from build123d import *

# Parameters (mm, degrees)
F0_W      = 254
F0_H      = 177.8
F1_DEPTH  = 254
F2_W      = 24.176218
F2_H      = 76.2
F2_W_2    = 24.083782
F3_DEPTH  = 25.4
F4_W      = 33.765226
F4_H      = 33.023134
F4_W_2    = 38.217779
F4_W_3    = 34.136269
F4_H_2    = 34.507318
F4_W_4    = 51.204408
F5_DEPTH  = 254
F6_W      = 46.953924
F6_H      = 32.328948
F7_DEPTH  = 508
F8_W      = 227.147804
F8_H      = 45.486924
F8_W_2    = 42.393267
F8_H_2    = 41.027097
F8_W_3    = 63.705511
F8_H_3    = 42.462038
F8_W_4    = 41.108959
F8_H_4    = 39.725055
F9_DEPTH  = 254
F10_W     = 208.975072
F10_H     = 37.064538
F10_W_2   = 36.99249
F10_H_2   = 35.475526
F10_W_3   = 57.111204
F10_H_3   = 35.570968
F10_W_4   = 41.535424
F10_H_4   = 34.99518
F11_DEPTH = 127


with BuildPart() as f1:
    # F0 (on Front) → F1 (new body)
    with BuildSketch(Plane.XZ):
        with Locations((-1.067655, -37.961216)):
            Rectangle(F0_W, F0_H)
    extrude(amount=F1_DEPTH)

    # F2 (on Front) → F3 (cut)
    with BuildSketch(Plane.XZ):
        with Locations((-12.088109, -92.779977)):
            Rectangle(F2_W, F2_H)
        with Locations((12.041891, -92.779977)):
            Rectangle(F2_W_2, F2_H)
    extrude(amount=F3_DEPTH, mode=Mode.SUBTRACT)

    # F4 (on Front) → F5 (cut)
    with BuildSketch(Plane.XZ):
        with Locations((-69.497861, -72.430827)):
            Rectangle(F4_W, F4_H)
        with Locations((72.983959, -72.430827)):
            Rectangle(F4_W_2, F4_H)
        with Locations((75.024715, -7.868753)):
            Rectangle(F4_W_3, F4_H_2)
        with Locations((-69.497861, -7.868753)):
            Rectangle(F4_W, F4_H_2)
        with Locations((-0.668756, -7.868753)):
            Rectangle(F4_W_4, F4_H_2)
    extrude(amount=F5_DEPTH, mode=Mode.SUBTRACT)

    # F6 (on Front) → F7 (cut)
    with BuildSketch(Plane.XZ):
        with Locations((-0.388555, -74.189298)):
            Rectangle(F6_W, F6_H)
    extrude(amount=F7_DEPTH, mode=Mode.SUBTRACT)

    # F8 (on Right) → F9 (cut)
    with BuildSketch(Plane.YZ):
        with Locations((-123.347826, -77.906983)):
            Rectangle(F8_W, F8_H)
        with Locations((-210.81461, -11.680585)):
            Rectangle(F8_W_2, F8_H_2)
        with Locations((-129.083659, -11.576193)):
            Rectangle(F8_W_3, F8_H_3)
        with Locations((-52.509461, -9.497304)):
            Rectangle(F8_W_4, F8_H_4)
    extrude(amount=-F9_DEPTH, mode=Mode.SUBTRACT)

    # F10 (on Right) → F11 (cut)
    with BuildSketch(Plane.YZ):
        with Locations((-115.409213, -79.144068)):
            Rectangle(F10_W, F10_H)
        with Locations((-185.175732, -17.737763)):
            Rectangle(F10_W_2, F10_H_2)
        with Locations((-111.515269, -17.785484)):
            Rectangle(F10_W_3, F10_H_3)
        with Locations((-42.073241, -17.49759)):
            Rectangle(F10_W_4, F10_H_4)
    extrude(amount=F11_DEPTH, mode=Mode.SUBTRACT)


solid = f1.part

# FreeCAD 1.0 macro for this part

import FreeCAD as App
import Part
import Sketcher
from FreeCAD import Vector
Q = App.Units.Quantity

doc = App.newDocument("Part")
body = doc.addObject("PartDesign::Body", "Body")

# Sketch on XZ plane
sketch1 = body.newObject("Sketcher::SketchObject", "Sketch")
sketch1.AttachmentSupport = (doc.getObject("XZ_Plane"), [""])
sketch1.MapMode = "FlatFace"
sketch1.addGeometry([
    Part.LineSegment(Vector(-128, 51, 0), Vector(-128, -127, 0)),
    Part.LineSegment(Vector(-128, -127, 0), Vector(126, -127, 0)),
    Part.LineSegment(Vector(126, -127, 0), Vector(126, 51, 0)),
    Part.LineSegment(Vector(126, 51, 0), Vector(-128, 51, 0)),
], False)
sketch1.addConstraint([
    Sketcher.Constraint("Coincident", 0, 2, 1, 1),
    Sketcher.Constraint("Coincident", 1, 2, 2, 1),
    Sketcher.Constraint("Coincident", 2, 2, 3, 1),
    Sketcher.Constraint("Coincident", 3, 2, 0, 1),
    Sketcher.Constraint("Vertical", 0),
    Sketcher.Constraint("Horizontal", 1),
    Sketcher.Constraint("Vertical", 2),
    Sketcher.Constraint("Horizontal", 3),
    Sketcher.Constraint("DistanceX", 1, 1, 1, 2, Q("10 in")),
    Sketcher.Constraint("DistanceY", 0, 2, 0, 1, Q("7 in")),
    Sketcher.Constraint("DistanceX", 0, 2, -1, 1, 128.067655),
    Sketcher.Constraint("DistanceY", 0, 2, -1, 1, 126.861216),
])
pad1 = body.newObject("PartDesign::Pad", "Pad")
pad1.Profile = sketch1
pad1.Length = Q("10 in")

# Sketch on XZ plane
sketch2 = body.newObject("Sketcher::SketchObject", "Sketch001")
sketch2.AttachmentSupport = (doc.getObject("XZ_Plane"), [""])
sketch2.MapMode = "FlatFace"
sketch2.addGeometry([
    Part.LineSegment(Vector(-24, -55, 0), Vector(-24, -131, 0)),
    Part.LineSegment(Vector(-24, -131, 0), Vector(24, -131, 0)),
    Part.LineSegment(Vector(24, -131, 0), Vector(24, -55, 0)),
    Part.LineSegment(Vector(24, -55, 0), Vector(-24, -55, 0)),
], False)
sketch2.addConstraint([
    Sketcher.Constraint("Coincident", 0, 2, 1, 1),
    Sketcher.Constraint("Coincident", 1, 2, 2, 1),
    Sketcher.Constraint("Coincident", 2, 2, 3, 1),
    Sketcher.Constraint("Coincident", 3, 2, 0, 1),
    Sketcher.Constraint("Vertical", 0),
    Sketcher.Constraint("Horizontal", 1),
    Sketcher.Constraint("Vertical", 2),
    Sketcher.Constraint("Horizontal", 3),
    Sketcher.Constraint("DistanceY", 0, 2, 0, 1, Q("3 in")),
    Sketcher.Constraint("DistanceX", 1, 1, 1, 2, Q("1.9 in")),
    Sketcher.Constraint("DistanceX", -1, 1, 1, 2, 24.083782),
    Sketcher.Constraint("DistanceY", 0, 2, -1, 1, 130.879977),
])
pocket1 = body.newObject("PartDesign::Pocket", "Pocket")
pocket1.Profile = sketch2
pocket1.Length = Q("1 in")
pocket1.Reversed = True

# Sketch on XZ plane
sketch3 = body.newObject("Sketcher::SketchObject", "Sketch002")
sketch3.AttachmentSupport = (doc.getObject("XZ_Plane"), [""])
sketch3.MapMode = "FlatFace"
sketch3.addGeometry([
    Part.LineSegment(Vector(-86, -56, 0), Vector(-86, -89, 0)),  # 0
    Part.LineSegment(Vector(-86, -89, 0), Vector(-53, -89, 0)),  # 1
    Part.LineSegment(Vector(-53, -89, 0), Vector(-53, -56, 0)),  # 2
    Part.LineSegment(Vector(-53, -56, 0), Vector(-86, -56, 0)),  # 3
    Part.LineSegment(Vector(54, -56, 0), Vector(54, -89, 0)),  # 4
    Part.LineSegment(Vector(54, -89, 0), Vector(92, -89, 0)),  # 5
    Part.LineSegment(Vector(92, -89, 0), Vector(92, -56, 0)),  # 6
    Part.LineSegment(Vector(92, -56, 0), Vector(54, -56, 0)),  # 7
    Part.LineSegment(Vector(58, 9, 0), Vector(58, -25, 0)),  # 8
    Part.LineSegment(Vector(58, -25, 0), Vector(92, -25, 0)),  # 9
    Part.LineSegment(Vector(92, -25, 0), Vector(92, 9, 0)),  # 10
    Part.LineSegment(Vector(92, 9, 0), Vector(58, 9, 0)),  # 11
    Part.LineSegment(Vector(-86, 9, 0), Vector(-86, -25, 0)),  # 12
    Part.LineSegment(Vector(-86, -25, 0), Vector(-53, -25, 0)),  # 13
    Part.LineSegment(Vector(-53, -25, 0), Vector(-53, 9, 0)),  # 14
    Part.LineSegment(Vector(-53, 9, 0), Vector(-86, 9, 0)),  # 15
    Part.LineSegment(Vector(-26, 9, 0), Vector(-26, -25, 0)),  # 16
    Part.LineSegment(Vector(-26, -25, 0), Vector(25, -25, 0)),  # 17
    Part.LineSegment(Vector(25, -25, 0), Vector(25, 9, 0)),  # 18
    Part.LineSegment(Vector(25, 9, 0), Vector(-26, 9, 0)),  # 19
], False)
sketch3.addConstraint([
    Sketcher.Constraint("Coincident", 0, 2, 1, 1),
    Sketcher.Constraint("Coincident", 1, 2, 2, 1),
    Sketcher.Constraint("Coincident", 2, 2, 3, 1),
    Sketcher.Constraint("Coincident", 3, 2, 0, 1),
    Sketcher.Constraint("Coincident", 4, 2, 5, 1),
    Sketcher.Constraint("Coincident", 5, 2, 6, 1),
    Sketcher.Constraint("Coincident", 6, 2, 7, 1),
    Sketcher.Constraint("Coincident", 7, 2, 4, 1),
    Sketcher.Constraint("Coincident", 8, 2, 9, 1),
    Sketcher.Constraint("Coincident", 9, 2, 10, 1),
    Sketcher.Constraint("Coincident", 10, 2, 11, 1),
    Sketcher.Constraint("Coincident", 11, 2, 8, 1),
    Sketcher.Constraint("Coincident", 12, 2, 13, 1),
    Sketcher.Constraint("Coincident", 13, 2, 14, 1),
    Sketcher.Constraint("Coincident", 14, 2, 15, 1),
    Sketcher.Constraint("Coincident", 15, 2, 12, 1),
    Sketcher.Constraint("Coincident", 16, 2, 17, 1),
    Sketcher.Constraint("Coincident", 17, 2, 18, 1),
    Sketcher.Constraint("Coincident", 18, 2, 19, 1),
    Sketcher.Constraint("Coincident", 19, 2, 16, 1),
    Sketcher.Constraint("Vertical", 0),
    Sketcher.Constraint("Horizontal", 1),
    Sketcher.Constraint("Vertical", 2),
    Sketcher.Constraint("Horizontal", 3),
    Sketcher.Constraint("Vertical", 4),
    Sketcher.Constraint("Horizontal", 5),
    Sketcher.Constraint("Vertical", 6),
    Sketcher.Constraint("Horizontal", 7),
    Sketcher.Constraint("Vertical", 8),
    Sketcher.Constraint("Horizontal", 9),
    Sketcher.Constraint("Vertical", 10),
    Sketcher.Constraint("Horizontal", 11),
    Sketcher.Constraint("Vertical", 12),
    Sketcher.Constraint("Horizontal", 13),
    Sketcher.Constraint("Vertical", 14),
    Sketcher.Constraint("Horizontal", 15),
    Sketcher.Constraint("Vertical", 16),
    Sketcher.Constraint("Horizontal", 17),
    Sketcher.Constraint("Vertical", 18),
    Sketcher.Constraint("Horizontal", 19),
    Sketcher.Constraint("Horizontal", 1, 2, 4, 2),
    Sketcher.Constraint("Horizontal", 3, 2, 6, 2),
    Sketcher.Constraint("Horizontal", 9, 2, 12, 2),
    Sketcher.Constraint("Horizontal", 11, 2, 14, 2),
    Sketcher.Constraint("Horizontal", 13, 2, 16, 2),
    Sketcher.Constraint("Horizontal", 15, 2, 18, 2),
    Sketcher.Constraint("Vertical", 6, 2, 9, 2),
    Sketcher.Constraint("Vertical", 3, 2, 12, 2),
    Sketcher.Constraint("Vertical", 2, 2, 13, 2),
    Sketcher.Constraint("DistanceX", 5, 1, 5, 2, 38.217779),
    Sketcher.Constraint("DistanceX", 9, 1, 9, 2, 34.136269),
    Sketcher.Constraint("DistanceY", 5, 2, 10, 2, 98.3273),
    Sketcher.Constraint("DistanceX", 17, 2, 9, 2, 67.159402),
    Sketcher.Constraint("DistanceX", 1, 1, 1, 2, 33.765226),
    Sketcher.Constraint("DistanceX", 17, 1, 17, 2, 51.204408),
    Sketcher.Constraint("DistanceY", 0, 2, 0, 1, 33.023134),
    Sketcher.Constraint("DistanceY", 8, 2, 8, 1, 34.507318),
    Sketcher.Constraint("DistanceY", 2, 2, -1, 1, 55.91926),
    Sketcher.Constraint("DistanceX", -1, 1, 4, 2, 53.87507),
    Sketcher.Constraint("DistanceX", 2, 2, 8, 2, 110.571829),
])
pocket2 = body.newObject("PartDesign::Pocket", "Pocket001")
pocket2.Profile = sketch3
pocket2.Length = Q("10 in")
pocket2.Reversed = True

# Sketch on XZ plane
sketch4 = body.newObject("Sketcher::SketchObject", "Sketch003")
sketch4.AttachmentSupport = (doc.getObject("XZ_Plane"), [""])
sketch4.MapMode = "FlatFace"
sketch4.addGeometry([
    Part.LineSegment(Vector(-24, -58, 0), Vector(-24, -90, 0)),
    Part.LineSegment(Vector(-24, -90, 0), Vector(23, -90, 0)),
    Part.LineSegment(Vector(23, -90, 0), Vector(23, -58, 0)),
    Part.LineSegment(Vector(23, -58, 0), Vector(-24, -58, 0)),
], False)
sketch4.addConstraint([
    Sketcher.Constraint("Coincident", 0, 2, 1, 1),
    Sketcher.Constraint("Coincident", 1, 2, 2, 1),
    Sketcher.Constraint("Coincident", 2, 2, 3, 1),
    Sketcher.Constraint("Coincident", 3, 2, 0, 1),
    Sketcher.Constraint("Vertical", 0),
    Sketcher.Constraint("Horizontal", 1),
    Sketcher.Constraint("Vertical", 2),
    Sketcher.Constraint("Horizontal", 3),
    Sketcher.Constraint("DistanceY", 0, 2, 0, 1, 32.328948),
    Sketcher.Constraint("DistanceX", 1, 1, 1, 2, 46.953924),
    Sketcher.Constraint("DistanceX", 0, 2, -1, 1, 23.865517),
    Sketcher.Constraint("DistanceY", 0, 2, -1, 1, 90.353772),
])
pocket3 = body.newObject("PartDesign::Pocket", "Pocket002")
pocket3.Profile = sketch4
pocket3.Length = Q("20 in")
pocket3.Reversed = True

# Sketch on YZ plane
sketch5 = body.newObject("Sketcher::SketchObject", "Sketch004")
sketch5.AttachmentSupport = (doc.getObject("YZ_Plane"), [""])
sketch5.MapMode = "FlatFace"
sketch5.addGeometry([
    Part.LineSegment(Vector(-237, -55, 0), Vector(-237, -101, 0)),  # 0
    Part.LineSegment(Vector(-237, -101, 0), Vector(-10, -101, 0)),  # 1
    Part.LineSegment(Vector(-10, -101, 0), Vector(-10, -55, 0)),  # 2
    Part.LineSegment(Vector(-10, -55, 0), Vector(-237, -55, 0)),  # 3
    Part.LineSegment(Vector(-232, 9, 0), Vector(-232, -32, 0)),  # 4
    Part.LineSegment(Vector(-232, -32, 0), Vector(-190, -32, 0)),  # 5
    Part.LineSegment(Vector(-190, -32, 0), Vector(-190, 9, 0)),  # 6
    Part.LineSegment(Vector(-190, 9, 0), Vector(-232, 9, 0)),  # 7
    Part.LineSegment(Vector(-161, 10, 0), Vector(-161, -33, 0)),  # 8
    Part.LineSegment(Vector(-161, -33, 0), Vector(-97, -33, 0)),  # 9
    Part.LineSegment(Vector(-97, -33, 0), Vector(-97, 10, 0)),  # 10
    Part.LineSegment(Vector(-97, 10, 0), Vector(-161, 10, 0)),  # 11
    Part.LineSegment(Vector(-73, 10, 0), Vector(-73, -29, 0)),  # 12
    Part.LineSegment(Vector(-73, -29, 0), Vector(-32, -29, 0)),  # 13
    Part.LineSegment(Vector(-32, -29, 0), Vector(-32, 10, 0)),  # 14
    Part.LineSegment(Vector(-32, 10, 0), Vector(-73, 10, 0)),  # 15
], False)
sketch5.addConstraint([
    Sketcher.Constraint("Coincident", 0, 2, 1, 1),
    Sketcher.Constraint("Coincident", 1, 2, 2, 1),
    Sketcher.Constraint("Coincident", 2, 2, 3, 1),
    Sketcher.Constraint("Coincident", 3, 2, 0, 1),
    Sketcher.Constraint("Coincident", 4, 2, 5, 1),
    Sketcher.Constraint("Coincident", 5, 2, 6, 1),
    Sketcher.Constraint("Coincident", 6, 2, 7, 1),
    Sketcher.Constraint("Coincident", 7, 2, 4, 1),
    Sketcher.Constraint("Coincident", 8, 2, 9, 1),
    Sketcher.Constraint("Coincident", 9, 2, 10, 1),
    Sketcher.Constraint("Coincident", 10, 2, 11, 1),
    Sketcher.Constraint("Coincident", 11, 2, 8, 1),
    Sketcher.Constraint("Coincident", 12, 2, 13, 1),
    Sketcher.Constraint("Coincident", 13, 2, 14, 1),
    Sketcher.Constraint("Coincident", 14, 2, 15, 1),
    Sketcher.Constraint("Coincident", 15, 2, 12, 1),
    Sketcher.Constraint("Vertical", 0),
    Sketcher.Constraint("Horizontal", 1),
    Sketcher.Constraint("Vertical", 2),
    Sketcher.Constraint("Horizontal", 3),
    Sketcher.Constraint("Vertical", 4),
    Sketcher.Constraint("Horizontal", 5),
    Sketcher.Constraint("Vertical", 6),
    Sketcher.Constraint("Horizontal", 7),
    Sketcher.Constraint("Vertical", 8),
    Sketcher.Constraint("Horizontal", 9),
    Sketcher.Constraint("Vertical", 10),
    Sketcher.Constraint("Horizontal", 11),
    Sketcher.Constraint("Vertical", 12),
    Sketcher.Constraint("Horizontal", 13),
    Sketcher.Constraint("Vertical", 14),
    Sketcher.Constraint("Horizontal", 15),
    Sketcher.Constraint("DistanceX", 1, 2, -1, 1, Q("0.3848002 in")),
    Sketcher.Constraint("DistanceX", 9, 1, 9, 2, 63.705511),
    Sketcher.Constraint("DistanceX", 13, 1, 13, 2, 41.108959),
    Sketcher.Constraint("DistanceX", 1, 1, 1, 2, 227.147804),
    Sketcher.Constraint("DistanceX", 5, 1, 5, 2, 42.393267),
    Sketcher.Constraint("DistanceY", 0, 2, 0, 1, 45.486924),
    Sketcher.Constraint("DistanceY", 4, 2, 4, 1, 41.027097),
    Sketcher.Constraint("DistanceY", 8, 2, 8, 1, 42.462038),
    Sketcher.Constraint("DistanceY", 12, 2, 12, 1, 39.725055),
    Sketcher.Constraint("DistanceY", 2, 2, -1, 1, 55.163521),
    Sketcher.Constraint("DistanceX", 12, 2, -1, 1, 73.063941),
    Sketcher.Constraint("DistanceY", 12, 2, -1, 1, 29.359831),
    Sketcher.Constraint("DistanceY", 0, 2, 4, 2, 68.456311),
    Sketcher.Constraint("DistanceX", 4, 2, 2, 2, 222.23732),
    Sketcher.Constraint("DistanceX", 5, 2, 8, 2, 28.681562),
    Sketcher.Constraint("DistanceY", 8, 2, 5, 2, 0.613079),
])
pocket4 = body.newObject("PartDesign::Pocket", "Pocket003")
pocket4.Profile = sketch5
pocket4.Length = Q("10 in")

# Sketch on YZ plane
sketch6 = body.newObject("Sketcher::SketchObject", "Sketch005")
sketch6.AttachmentSupport = (doc.getObject("YZ_Plane"), [""])
sketch6.MapMode = "FlatFace"
sketch6.addGeometry([
    Part.LineSegment(Vector(-220, -61, 0), Vector(-220, -98, 0)),  # 0
    Part.LineSegment(Vector(-220, -98, 0), Vector(-11, -98, 0)),  # 1
    Part.LineSegment(Vector(-11, -98, 0), Vector(-11, -61, 0)),  # 2
    Part.LineSegment(Vector(-11, -61, 0), Vector(-220, -61, 0)),  # 3
    Part.LineSegment(Vector(-204, 0, 0), Vector(-204, -35, 0)),  # 4
    Part.LineSegment(Vector(-204, -35, 0), Vector(-167, -35, 0)),  # 5
    Part.LineSegment(Vector(-167, -35, 0), Vector(-167, 0, 0)),  # 6
    Part.LineSegment(Vector(-167, 0, 0), Vector(-204, 0, 0)),  # 7
    Part.LineSegment(Vector(-140, 0, 0), Vector(-140, -36, 0)),  # 8
    Part.LineSegment(Vector(-140, -36, 0), Vector(-83, -36, 0)),  # 9
    Part.LineSegment(Vector(-83, -36, 0), Vector(-83, 0, 0)),  # 10
    Part.LineSegment(Vector(-83, 0, 0), Vector(-140, 0, 0)),  # 11
    Part.LineSegment(Vector(-63, 0, 0), Vector(-63, -35, 0)),  # 12
    Part.LineSegment(Vector(-63, -35, 0), Vector(-21, -35, 0)),  # 13
    Part.LineSegment(Vector(-21, -35, 0), Vector(-21, 0, 0)),  # 14
    Part.LineSegment(Vector(-21, 0, 0), Vector(-63, 0, 0)),  # 15
], False)
sketch6.addConstraint([
    Sketcher.Constraint("Coincident", 0, 2, 1, 1),
    Sketcher.Constraint("Coincident", 1, 2, 2, 1),
    Sketcher.Constraint("Coincident", 2, 2, 3, 1),
    Sketcher.Constraint("Coincident", 3, 2, 0, 1),
    Sketcher.Constraint("Coincident", 4, 2, 5, 1),
    Sketcher.Constraint("Coincident", 5, 2, 6, 1),
    Sketcher.Constraint("Coincident", 6, 2, 7, 1),
    Sketcher.Constraint("Coincident", 7, 2, 4, 1),
    Sketcher.Constraint("Coincident", 8, 2, 9, 1),
    Sketcher.Constraint("Coincident", 9, 2, 10, 1),
    Sketcher.Constraint("Coincident", 10, 2, 11, 1),
    Sketcher.Constraint("Coincident", 11, 2, 8, 1),
    Sketcher.Constraint("Coincident", 12, 2, 13, 1),
    Sketcher.Constraint("Coincident", 13, 2, 14, 1),
    Sketcher.Constraint("Coincident", 14, 2, 15, 1),
    Sketcher.Constraint("Coincident", 15, 2, 12, 1),
    Sketcher.Constraint("Vertical", 0),
    Sketcher.Constraint("Horizontal", 1),
    Sketcher.Constraint("Vertical", 2),
    Sketcher.Constraint("Horizontal", 3),
    Sketcher.Constraint("Vertical", 4),
    Sketcher.Constraint("Horizontal", 5),
    Sketcher.Constraint("Vertical", 6),
    Sketcher.Constraint("Horizontal", 7),
    Sketcher.Constraint("Vertical", 8),
    Sketcher.Constraint("Horizontal", 9),
    Sketcher.Constraint("Vertical", 10),
    Sketcher.Constraint("Horizontal", 11),
    Sketcher.Constraint("Vertical", 12),
    Sketcher.Constraint("Horizontal", 13),
    Sketcher.Constraint("Vertical", 14),
    Sketcher.Constraint("Horizontal", 15),
    Sketcher.Constraint("PointOnObject", 6, 2, -1),
    Sketcher.Constraint("PointOnObject", 10, 2, -1),
    Sketcher.Constraint("PointOnObject", 14, 2, -1),
    Sketcher.Constraint("DistanceX", 5, 1, 5, 2, 36.99249),
    Sketcher.Constraint("DistanceY", 0, 2, 0, 1, 37.064538),
    Sketcher.Constraint("DistanceY", 12, 2, 12, 1, 34.99518),
    Sketcher.Constraint("DistanceY", 2, 2, -1, 1, 60.611799),
    Sketcher.Constraint("DistanceX", 4, 2, 2, 2, 192.7503),
    Sketcher.Constraint("DistanceX", 1, 1, 1, 2, 208.975072),
    Sketcher.Constraint("DistanceX", 9, 1, 9, 2, 57.111204),
    Sketcher.Constraint("DistanceX", 13, 1, 13, 2, 41.535424),
    Sketcher.Constraint("DistanceY", 4, 2, 4, 1, 35.475526),
    Sketcher.Constraint("DistanceY", 8, 2, 8, 1, 35.570968),
    Sketcher.Constraint("DistanceX", 0, 2, -1, 1, 219.896749),
    Sketcher.Constraint("DistanceX", 8, 2, -1, 1, 140.070871),
    Sketcher.Constraint("DistanceX", 13, 2, -1, 1, 21.305529),
])
pocket5 = body.newObject("PartDesign::Pocket", "Pocket004")
pocket5.Profile = sketch6
pocket5.Length = Q("5 in")
pocket5.Reversed = True

doc.recompute()
